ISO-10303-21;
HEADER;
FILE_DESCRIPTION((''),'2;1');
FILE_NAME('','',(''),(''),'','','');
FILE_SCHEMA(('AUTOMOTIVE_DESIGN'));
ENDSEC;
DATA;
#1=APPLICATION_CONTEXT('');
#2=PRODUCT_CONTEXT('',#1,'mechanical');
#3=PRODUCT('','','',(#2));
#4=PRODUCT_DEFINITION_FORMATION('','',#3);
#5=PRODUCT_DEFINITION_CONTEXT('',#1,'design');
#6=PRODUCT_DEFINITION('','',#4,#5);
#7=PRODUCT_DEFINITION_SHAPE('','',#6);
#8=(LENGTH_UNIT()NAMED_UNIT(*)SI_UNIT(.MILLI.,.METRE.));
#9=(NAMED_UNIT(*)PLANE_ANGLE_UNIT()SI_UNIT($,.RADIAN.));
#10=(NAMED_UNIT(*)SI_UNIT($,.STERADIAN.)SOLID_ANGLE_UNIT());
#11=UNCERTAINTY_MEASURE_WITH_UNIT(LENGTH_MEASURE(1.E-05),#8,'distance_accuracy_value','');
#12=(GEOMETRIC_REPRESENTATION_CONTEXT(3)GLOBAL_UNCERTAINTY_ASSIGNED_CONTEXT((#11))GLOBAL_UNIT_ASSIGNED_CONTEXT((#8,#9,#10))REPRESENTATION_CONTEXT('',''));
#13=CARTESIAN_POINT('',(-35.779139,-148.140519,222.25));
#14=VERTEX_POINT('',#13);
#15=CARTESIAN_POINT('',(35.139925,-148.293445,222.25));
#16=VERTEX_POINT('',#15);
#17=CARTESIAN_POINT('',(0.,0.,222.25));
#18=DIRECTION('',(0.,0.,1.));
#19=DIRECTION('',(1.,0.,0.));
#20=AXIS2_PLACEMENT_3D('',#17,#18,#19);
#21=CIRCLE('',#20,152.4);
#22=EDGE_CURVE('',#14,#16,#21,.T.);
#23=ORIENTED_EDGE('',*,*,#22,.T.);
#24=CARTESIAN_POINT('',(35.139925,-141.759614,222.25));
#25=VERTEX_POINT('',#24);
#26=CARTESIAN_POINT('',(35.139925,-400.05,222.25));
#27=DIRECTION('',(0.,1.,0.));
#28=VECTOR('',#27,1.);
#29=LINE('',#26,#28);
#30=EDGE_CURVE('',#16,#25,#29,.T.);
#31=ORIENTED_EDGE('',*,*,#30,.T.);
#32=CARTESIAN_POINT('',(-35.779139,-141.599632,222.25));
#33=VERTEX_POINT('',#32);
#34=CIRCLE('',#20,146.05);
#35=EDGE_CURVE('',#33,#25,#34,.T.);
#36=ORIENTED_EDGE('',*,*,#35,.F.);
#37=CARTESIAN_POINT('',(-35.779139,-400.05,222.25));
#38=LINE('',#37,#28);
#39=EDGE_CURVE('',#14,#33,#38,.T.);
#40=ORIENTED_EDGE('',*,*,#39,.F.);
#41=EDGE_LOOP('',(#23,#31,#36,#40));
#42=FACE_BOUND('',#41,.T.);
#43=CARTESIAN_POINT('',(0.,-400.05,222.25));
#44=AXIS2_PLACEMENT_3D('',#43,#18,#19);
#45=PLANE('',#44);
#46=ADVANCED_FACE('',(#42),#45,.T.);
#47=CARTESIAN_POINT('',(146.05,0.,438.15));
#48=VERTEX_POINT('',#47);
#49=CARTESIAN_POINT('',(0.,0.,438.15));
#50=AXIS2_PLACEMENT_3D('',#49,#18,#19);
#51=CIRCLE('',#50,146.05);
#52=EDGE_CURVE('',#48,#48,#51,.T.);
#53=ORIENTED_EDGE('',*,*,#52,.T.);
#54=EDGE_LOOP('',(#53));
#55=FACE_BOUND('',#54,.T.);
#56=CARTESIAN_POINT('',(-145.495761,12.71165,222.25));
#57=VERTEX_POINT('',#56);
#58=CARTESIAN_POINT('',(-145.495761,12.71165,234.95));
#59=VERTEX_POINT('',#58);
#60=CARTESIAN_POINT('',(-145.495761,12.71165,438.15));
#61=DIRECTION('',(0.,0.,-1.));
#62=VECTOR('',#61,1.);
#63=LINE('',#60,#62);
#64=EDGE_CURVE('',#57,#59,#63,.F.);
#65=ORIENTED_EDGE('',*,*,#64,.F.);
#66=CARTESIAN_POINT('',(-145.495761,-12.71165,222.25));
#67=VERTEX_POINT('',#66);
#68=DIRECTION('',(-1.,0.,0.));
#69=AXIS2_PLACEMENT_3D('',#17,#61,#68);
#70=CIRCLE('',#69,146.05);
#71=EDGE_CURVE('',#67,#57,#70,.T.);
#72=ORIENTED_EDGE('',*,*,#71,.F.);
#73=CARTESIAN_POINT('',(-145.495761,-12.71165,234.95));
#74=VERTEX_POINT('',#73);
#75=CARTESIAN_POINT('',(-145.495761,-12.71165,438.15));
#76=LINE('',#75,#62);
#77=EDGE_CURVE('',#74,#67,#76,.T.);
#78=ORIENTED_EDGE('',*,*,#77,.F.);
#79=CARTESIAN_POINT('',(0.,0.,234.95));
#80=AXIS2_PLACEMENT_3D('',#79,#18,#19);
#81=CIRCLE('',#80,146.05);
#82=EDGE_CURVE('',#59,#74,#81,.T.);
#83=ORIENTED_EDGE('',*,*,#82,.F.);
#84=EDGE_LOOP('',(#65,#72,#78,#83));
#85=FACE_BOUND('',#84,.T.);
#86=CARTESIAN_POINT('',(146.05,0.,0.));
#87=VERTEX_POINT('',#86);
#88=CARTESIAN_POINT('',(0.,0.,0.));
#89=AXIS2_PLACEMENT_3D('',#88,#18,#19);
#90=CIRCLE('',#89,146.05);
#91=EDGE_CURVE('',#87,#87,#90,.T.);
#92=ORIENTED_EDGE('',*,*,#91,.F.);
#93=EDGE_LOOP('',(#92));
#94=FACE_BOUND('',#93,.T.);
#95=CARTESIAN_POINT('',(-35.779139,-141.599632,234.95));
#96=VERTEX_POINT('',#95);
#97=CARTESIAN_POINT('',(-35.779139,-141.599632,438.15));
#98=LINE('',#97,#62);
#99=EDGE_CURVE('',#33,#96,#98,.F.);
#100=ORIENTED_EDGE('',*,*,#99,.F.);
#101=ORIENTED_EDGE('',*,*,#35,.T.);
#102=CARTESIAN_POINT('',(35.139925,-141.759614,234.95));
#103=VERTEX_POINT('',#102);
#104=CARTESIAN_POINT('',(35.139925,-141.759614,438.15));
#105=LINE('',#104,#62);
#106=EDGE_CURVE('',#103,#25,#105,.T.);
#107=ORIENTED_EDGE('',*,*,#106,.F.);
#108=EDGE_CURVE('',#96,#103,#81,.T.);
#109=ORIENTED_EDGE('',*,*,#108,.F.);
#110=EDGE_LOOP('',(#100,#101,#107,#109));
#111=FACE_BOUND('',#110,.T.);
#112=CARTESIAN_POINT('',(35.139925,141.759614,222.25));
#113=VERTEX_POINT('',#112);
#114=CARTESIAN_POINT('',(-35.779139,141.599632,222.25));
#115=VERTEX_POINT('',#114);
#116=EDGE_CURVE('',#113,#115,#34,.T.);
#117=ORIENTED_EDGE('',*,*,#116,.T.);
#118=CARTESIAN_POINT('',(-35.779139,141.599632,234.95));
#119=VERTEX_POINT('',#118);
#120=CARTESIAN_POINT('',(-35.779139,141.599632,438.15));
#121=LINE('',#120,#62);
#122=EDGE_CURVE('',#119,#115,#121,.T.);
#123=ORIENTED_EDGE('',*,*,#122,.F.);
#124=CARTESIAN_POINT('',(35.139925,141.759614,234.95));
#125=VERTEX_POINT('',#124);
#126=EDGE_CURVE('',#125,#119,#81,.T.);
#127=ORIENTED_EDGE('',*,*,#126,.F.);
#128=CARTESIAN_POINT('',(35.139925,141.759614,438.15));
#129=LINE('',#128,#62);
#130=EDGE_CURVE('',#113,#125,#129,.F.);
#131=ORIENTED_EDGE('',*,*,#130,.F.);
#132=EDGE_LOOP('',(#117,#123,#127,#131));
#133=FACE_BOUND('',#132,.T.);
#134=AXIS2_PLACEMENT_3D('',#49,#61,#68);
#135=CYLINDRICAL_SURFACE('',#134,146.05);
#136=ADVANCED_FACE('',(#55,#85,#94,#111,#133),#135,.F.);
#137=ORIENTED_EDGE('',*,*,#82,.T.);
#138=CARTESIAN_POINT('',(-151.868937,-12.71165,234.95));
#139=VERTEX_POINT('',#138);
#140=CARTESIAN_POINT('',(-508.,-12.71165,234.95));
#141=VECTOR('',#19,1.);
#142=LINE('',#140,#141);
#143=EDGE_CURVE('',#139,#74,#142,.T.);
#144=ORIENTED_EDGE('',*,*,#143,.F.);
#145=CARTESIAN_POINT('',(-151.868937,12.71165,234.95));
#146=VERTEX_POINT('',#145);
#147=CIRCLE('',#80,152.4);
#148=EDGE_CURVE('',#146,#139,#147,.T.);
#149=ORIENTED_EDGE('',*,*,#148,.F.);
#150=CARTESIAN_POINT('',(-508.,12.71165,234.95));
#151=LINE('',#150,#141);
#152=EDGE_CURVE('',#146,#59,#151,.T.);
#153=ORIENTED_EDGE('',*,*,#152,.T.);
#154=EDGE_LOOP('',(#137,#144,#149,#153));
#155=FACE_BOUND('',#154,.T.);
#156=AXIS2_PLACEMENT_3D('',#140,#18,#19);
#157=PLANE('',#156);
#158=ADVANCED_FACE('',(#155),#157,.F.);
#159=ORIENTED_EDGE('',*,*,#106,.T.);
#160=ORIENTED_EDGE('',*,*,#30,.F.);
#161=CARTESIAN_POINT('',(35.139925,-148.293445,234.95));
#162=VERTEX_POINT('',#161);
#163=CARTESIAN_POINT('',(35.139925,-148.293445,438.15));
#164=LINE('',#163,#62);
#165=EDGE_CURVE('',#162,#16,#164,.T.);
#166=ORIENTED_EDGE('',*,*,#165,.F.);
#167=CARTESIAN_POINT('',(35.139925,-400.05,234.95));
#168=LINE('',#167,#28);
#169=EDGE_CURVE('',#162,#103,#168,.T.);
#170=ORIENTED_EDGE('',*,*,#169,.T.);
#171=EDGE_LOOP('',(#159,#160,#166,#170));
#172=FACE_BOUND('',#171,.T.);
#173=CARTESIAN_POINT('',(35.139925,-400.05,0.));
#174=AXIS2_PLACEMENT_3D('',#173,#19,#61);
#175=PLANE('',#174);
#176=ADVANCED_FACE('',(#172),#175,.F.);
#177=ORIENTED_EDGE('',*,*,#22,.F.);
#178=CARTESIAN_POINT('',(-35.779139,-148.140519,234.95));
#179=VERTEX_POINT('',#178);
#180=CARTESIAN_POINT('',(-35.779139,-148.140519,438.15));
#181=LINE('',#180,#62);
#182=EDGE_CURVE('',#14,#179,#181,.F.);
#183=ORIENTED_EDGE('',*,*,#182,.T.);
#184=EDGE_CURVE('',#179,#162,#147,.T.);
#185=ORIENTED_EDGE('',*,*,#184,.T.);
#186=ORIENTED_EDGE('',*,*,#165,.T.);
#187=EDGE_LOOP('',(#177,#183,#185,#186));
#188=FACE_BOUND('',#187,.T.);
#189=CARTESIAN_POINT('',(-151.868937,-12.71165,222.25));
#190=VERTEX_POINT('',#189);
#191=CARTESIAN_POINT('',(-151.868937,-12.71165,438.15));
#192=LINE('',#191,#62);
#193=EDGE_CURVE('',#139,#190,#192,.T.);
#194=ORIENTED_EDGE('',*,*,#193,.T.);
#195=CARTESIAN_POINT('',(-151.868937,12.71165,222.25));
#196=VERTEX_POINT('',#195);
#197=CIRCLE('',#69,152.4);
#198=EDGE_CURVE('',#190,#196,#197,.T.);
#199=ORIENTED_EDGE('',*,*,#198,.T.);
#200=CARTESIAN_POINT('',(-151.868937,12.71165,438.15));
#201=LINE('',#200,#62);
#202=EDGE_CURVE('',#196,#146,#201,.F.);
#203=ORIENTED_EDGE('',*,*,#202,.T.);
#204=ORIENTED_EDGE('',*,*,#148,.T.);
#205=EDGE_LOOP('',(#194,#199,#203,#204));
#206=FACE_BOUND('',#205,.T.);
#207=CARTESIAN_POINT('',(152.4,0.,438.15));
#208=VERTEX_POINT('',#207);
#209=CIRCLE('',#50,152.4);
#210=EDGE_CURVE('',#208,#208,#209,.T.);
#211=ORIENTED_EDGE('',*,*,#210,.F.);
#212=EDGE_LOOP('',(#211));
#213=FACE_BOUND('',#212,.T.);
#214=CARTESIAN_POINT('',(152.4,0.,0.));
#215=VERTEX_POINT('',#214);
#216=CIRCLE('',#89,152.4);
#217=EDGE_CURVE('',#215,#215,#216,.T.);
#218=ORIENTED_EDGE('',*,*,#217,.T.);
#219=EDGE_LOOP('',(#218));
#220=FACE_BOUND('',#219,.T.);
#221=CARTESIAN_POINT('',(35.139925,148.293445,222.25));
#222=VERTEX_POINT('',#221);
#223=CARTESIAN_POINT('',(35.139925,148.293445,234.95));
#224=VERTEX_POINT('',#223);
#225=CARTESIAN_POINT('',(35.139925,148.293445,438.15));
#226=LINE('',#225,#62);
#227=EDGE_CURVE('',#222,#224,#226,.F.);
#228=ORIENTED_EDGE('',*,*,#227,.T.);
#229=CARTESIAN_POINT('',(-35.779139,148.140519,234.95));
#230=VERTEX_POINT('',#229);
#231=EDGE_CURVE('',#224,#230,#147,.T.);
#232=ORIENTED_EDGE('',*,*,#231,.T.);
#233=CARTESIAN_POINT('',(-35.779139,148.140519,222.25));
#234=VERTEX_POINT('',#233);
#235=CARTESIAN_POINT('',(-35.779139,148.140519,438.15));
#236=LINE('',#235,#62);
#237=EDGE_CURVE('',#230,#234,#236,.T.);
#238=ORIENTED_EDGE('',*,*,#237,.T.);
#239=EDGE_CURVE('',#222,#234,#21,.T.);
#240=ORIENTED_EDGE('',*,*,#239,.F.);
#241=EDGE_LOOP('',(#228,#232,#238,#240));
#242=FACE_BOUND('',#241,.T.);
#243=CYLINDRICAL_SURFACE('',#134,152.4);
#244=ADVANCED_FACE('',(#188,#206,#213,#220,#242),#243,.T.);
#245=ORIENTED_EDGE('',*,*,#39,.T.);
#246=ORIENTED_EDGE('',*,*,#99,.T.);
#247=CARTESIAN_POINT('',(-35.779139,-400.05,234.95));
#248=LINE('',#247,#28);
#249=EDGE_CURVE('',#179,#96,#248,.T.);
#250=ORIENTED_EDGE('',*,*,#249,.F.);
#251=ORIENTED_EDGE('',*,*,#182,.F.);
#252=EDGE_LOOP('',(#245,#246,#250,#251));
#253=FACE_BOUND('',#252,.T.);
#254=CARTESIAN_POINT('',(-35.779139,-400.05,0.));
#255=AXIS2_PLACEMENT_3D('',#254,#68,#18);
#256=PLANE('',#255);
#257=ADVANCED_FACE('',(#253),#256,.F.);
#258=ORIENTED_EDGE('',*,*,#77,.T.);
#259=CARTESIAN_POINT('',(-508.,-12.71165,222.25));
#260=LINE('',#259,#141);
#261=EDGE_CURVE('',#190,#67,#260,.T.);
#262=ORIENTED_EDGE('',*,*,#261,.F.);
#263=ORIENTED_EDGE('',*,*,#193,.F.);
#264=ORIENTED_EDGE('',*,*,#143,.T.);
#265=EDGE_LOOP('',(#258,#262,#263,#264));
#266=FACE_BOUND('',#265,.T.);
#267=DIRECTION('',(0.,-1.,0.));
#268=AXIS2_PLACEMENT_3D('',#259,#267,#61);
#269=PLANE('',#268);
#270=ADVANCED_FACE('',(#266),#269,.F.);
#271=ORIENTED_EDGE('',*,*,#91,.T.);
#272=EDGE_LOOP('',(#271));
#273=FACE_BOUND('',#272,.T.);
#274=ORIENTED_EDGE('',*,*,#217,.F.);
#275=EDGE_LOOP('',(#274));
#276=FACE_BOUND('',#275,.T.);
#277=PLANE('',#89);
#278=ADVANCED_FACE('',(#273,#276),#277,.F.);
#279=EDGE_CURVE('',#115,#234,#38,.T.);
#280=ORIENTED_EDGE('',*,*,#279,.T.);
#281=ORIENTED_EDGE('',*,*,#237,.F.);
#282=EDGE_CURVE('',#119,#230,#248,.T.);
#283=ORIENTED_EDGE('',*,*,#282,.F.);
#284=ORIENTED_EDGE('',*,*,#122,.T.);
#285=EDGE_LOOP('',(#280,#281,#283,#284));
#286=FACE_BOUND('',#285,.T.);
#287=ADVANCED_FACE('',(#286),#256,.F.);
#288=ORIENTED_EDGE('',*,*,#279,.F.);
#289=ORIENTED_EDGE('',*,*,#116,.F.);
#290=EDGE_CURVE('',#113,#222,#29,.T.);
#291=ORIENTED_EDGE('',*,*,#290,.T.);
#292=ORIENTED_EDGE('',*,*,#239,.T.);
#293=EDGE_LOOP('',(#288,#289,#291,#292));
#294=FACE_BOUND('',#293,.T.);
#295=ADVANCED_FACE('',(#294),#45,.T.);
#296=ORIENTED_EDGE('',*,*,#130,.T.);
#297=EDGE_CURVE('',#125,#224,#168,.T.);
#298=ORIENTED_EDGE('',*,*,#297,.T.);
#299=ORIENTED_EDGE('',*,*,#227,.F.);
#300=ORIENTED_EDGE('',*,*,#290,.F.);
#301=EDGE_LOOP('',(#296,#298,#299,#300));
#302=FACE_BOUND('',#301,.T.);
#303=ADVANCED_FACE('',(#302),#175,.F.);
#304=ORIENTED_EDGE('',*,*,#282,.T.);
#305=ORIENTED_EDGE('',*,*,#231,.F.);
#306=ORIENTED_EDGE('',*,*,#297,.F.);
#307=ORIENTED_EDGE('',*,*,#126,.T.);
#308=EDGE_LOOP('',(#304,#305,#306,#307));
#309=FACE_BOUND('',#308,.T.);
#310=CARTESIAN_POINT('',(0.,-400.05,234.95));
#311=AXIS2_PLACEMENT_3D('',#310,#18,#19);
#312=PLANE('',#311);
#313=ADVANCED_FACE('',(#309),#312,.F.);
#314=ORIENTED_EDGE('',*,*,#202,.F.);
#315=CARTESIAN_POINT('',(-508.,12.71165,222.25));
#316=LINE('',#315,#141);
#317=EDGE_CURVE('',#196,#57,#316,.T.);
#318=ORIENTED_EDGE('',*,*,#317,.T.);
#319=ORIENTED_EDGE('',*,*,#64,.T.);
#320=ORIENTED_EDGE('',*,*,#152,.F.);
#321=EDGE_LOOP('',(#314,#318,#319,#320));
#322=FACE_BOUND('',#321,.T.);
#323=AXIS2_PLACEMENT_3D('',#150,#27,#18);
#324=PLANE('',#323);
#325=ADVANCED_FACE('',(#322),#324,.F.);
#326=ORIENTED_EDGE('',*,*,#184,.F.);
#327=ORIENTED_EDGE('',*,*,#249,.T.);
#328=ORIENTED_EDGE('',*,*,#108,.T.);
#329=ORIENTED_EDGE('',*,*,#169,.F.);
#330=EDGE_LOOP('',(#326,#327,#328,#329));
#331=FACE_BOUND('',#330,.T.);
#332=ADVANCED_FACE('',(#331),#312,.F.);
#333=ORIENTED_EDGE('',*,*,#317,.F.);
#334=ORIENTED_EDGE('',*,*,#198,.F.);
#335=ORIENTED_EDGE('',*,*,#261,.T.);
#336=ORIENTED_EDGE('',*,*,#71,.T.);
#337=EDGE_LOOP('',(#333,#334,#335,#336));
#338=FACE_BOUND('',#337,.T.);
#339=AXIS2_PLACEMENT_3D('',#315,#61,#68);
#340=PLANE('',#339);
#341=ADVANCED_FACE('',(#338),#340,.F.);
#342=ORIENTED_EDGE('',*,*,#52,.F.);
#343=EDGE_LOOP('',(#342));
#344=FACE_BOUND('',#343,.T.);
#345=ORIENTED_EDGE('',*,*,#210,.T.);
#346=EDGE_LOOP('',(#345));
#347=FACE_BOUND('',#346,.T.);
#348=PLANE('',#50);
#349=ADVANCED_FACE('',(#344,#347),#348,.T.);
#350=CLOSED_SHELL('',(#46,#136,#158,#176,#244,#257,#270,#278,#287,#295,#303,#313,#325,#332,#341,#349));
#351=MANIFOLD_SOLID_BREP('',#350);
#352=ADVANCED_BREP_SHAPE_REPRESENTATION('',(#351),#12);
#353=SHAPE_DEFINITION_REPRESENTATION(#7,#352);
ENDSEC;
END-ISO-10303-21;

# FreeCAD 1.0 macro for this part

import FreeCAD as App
import Part
import Sketcher

V = App.Vector
Q = App.Units.Quantity


def add_polygon(sketch, points):
    """Adds a closed chain of lines whose ends are joined by coincident constraints."""
    first, n = sketch.GeometryCount, len(points)
    for a, b in zip(points, points[1:] + points[:1]):
        sketch.addGeometry(Part.LineSegment(App.Vector(*a, 0), App.Vector(*b, 0)), False)
    for i in range(n):
        sketch.addConstraint(Sketcher.Constraint("Coincident", first + i, 2, first + (i + 1) % n, 1))

doc = App.newDocument("Part")
body = doc.addObject("PartDesign::Body", "Body")

# Sketch on XY plane
sketch1 = doc.addObject("Sketcher::SketchObject", "Sketch")
body.addObject(sketch1)
sketch1.AttachmentSupport = (doc.XY_Plane, [""])
sketch1.MapMode = "FlatFace"
sketch1.addGeometry(Part.Circle(V(0, 0, 0), V(0, 0, 1), 152), False)
sketch1.addGeometry(Part.Circle(V(0, 0, 0), V(0, 0, 1), 146), False)
sketch1.addConstraint(Sketcher.Constraint("Coincident", 0, 3, -1, 1))
sketch1.addConstraint(Sketcher.Constraint("Coincident", 1, 3, -1, 1))
sketch1.addConstraint(Sketcher.Constraint("Diameter", 0, Q("12 in")))
sketch1.addConstraint(Sketcher.Constraint("Diameter", 1, Q("11.5 in")))
pad1 = doc.addObject("PartDesign::Pad", "Pad")
body.addObject(pad1)
pad1.Profile = sketch1
pad1.Length = Q("17.25 in")

# Sketch on XZ plane
sketch2 = doc.addObject("Sketcher::SketchObject", "Sketch001")
body.addObject(sketch2)
sketch2.AttachmentSupport = (doc.XZ_Plane, [""])
sketch2.MapMode = "FlatFace"
add_polygon(sketch2, [(-36, 222), (-36, 235), (35, 235), (35, 222)])  # lines 0-3
sketch2.addConstraint(Sketcher.Constraint("Vertical", 0))
sketch2.addConstraint(Sketcher.Constraint("Horizontal", 1))
sketch2.addConstraint(Sketcher.Constraint("Vertical", 2))
sketch2.addConstraint(Sketcher.Constraint("Horizontal", 3))
sketch2.addConstraint(Sketcher.Constraint("DistanceY", 0, 1, 0, 2, Q("0.5 in")))
sketch2.addConstraint(Sketcher.Constraint("DistanceY", -1, 1, 0, 2, Q("9.25 in")))
sketch2.addConstraint(Sketcher.Constraint("DistanceX", 1, 1, 1, 2, Q("70.919063 mm")))
sketch2.addConstraint(Sketcher.Constraint("DistanceX", 0, 2, -1, 1, Q("35.779139 mm")))
pocket1 = doc.addObject("PartDesign::Pocket", "Pocket")
body.addObject(pocket1)
pocket1.Profile = sketch2
pocket1.Length = Q("31.5 in")
pocket1.Midplane = True

# Sketch on YZ plane
sketch3 = doc.addObject("Sketcher::SketchObject", "Sketch002")
body.addObject(sketch3)
sketch3.AttachmentSupport = (doc.YZ_Plane, [""])
sketch3.MapMode = "FlatFace"
add_polygon(sketch3, [(13, 235), (-13, 235), (-13, 222), (13, 222)])  # lines 0-3
sketch3.addConstraint(Sketcher.Constraint("Horizontal", 0))
sketch3.addConstraint(Sketcher.Constraint("Vertical", 1))
sketch3.addConstraint(Sketcher.Constraint("Horizontal", 2))
sketch3.addConstraint(Sketcher.Constraint("Vertical", 3))
sketch3.addConstraint(Sketcher.Constraint("DistanceY", 1, 2, 1, 1, Q("0.5 in")))
sketch3.addConstraint(Sketcher.Constraint("DistanceY", -1, 1, 0, 2, Q("9.25 in")))
sketch3.addConstraint(Sketcher.Constraint("DistanceX", 0, 2, 0, 1, Q("25.4233 mm")))
sketch3.addConstraint(Sketcher.Constraint("DistanceX", 0, 2, -1, 1, Q("12.71165 mm")))
pocket2 = doc.addObject("PartDesign::Pocket", "Pocket001")
body.addObject(pocket2)
pocket2.Profile = sketch3
pocket2.Length = Q("20 in")

doc.recompute()
